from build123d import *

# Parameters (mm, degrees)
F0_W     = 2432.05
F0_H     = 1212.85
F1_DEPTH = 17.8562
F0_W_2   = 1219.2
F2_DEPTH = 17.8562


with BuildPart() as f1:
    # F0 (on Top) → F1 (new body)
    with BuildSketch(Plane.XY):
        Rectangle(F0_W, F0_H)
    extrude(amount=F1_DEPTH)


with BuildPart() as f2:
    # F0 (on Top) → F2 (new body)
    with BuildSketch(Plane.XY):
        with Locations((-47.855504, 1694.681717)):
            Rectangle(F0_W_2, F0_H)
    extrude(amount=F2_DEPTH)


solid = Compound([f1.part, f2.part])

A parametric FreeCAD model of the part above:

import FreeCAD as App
import Part
import Sketcher

V = App.Vector
Q = App.Units.Quantity


def add_polygon(sketch, points):
    """Adds a closed chain of lines whose ends are joined by coincident constraints."""
    first, n = sketch.GeometryCount, len(points)
    for a, b in zip(points, points[1:] + points[:1]):
        sketch.addGeometry(Part.LineSegment(App.Vector(*a, 0), App.Vector(*b, 0)), False)
    for i in range(n):
        sketch.addConstraint(Sketcher.Constraint("Coincident", first + i, 2, first + (i + 1) % n, 1))

doc = App.newDocument("Part")
body = doc.addObject("PartDesign::Body", "Body")

sketch1 = doc.addObject("Sketcher::SketchObject", "Sketch")
body.addObject(sketch1)
sketch1.AttachmentSupport = (doc.XY_Plane, [""])
sketch1.MapMode = "FlatFace"
add_polygon(sketch1, [(-1216, 606), (-1216, -606), (1216, -606), (1216, 606)])
sketch1.addConstraint([
    Sketcher.Constraint("Vertical", 0),
    Sketcher.Constraint("Horizontal", 1),
    Sketcher.Constraint("Vertical", 2),
    Sketcher.Constraint("Horizontal", 3),
    Sketcher.Constraint("Symmetric", 0, 2, 2, 2, -1, 1),
    Sketcher.Constraint("DistanceX", 1, 1, 1, 2, Q("95.75 in")),
    Sketcher.Constraint("DistanceY", 0, 2, 0, 1, Q("47.75 in")),
])
pad1 = doc.addObject("PartDesign::Pad", "Pad")
body.addObject(pad1)
pad1.Profile = sketch1
pad1.Length = Q("0.703 in")
body2 = doc.addObject("PartDesign::Body", "Body001")

sketch2 = doc.addObject("Sketcher::SketchObject", "Sketch001")
body2.addObject(sketch2)
sketch2.AttachmentSupport = (doc.getObject("XY_Plane001"), [""])
sketch2.MapMode = "FlatFace"
add_polygon(sketch2, [(-657, 2301), (-657, 1088), (562, 1088), (562, 2301)])
sketch2.addConstraint([
    Sketcher.Constraint("Vertical", 0),
    Sketcher.Constraint("Horizontal", 1),
    Sketcher.Constraint("Vertical", 2),
    Sketcher.Constraint("Horizontal", 3),
    Sketcher.Constraint("DistanceX", 1, 1, 1, 2, Q("48 in")),
    Sketcher.Constraint("DistanceY", 0, 2, 0, 1, Q("47.75 in")),
    Sketcher.Constraint("DistanceX", 0, 2, -1, 1, 657.455504),
    Sketcher.Constraint("DistanceY", -1, 1, 0, 2, 1088.256717),
])
pad2 = doc.addObject("PartDesign::Pad", "Pad001")
body2.addObject(pad2)
pad2.Profile = sketch2
pad2.Length = Q("0.703 in")

doc.recompute()
